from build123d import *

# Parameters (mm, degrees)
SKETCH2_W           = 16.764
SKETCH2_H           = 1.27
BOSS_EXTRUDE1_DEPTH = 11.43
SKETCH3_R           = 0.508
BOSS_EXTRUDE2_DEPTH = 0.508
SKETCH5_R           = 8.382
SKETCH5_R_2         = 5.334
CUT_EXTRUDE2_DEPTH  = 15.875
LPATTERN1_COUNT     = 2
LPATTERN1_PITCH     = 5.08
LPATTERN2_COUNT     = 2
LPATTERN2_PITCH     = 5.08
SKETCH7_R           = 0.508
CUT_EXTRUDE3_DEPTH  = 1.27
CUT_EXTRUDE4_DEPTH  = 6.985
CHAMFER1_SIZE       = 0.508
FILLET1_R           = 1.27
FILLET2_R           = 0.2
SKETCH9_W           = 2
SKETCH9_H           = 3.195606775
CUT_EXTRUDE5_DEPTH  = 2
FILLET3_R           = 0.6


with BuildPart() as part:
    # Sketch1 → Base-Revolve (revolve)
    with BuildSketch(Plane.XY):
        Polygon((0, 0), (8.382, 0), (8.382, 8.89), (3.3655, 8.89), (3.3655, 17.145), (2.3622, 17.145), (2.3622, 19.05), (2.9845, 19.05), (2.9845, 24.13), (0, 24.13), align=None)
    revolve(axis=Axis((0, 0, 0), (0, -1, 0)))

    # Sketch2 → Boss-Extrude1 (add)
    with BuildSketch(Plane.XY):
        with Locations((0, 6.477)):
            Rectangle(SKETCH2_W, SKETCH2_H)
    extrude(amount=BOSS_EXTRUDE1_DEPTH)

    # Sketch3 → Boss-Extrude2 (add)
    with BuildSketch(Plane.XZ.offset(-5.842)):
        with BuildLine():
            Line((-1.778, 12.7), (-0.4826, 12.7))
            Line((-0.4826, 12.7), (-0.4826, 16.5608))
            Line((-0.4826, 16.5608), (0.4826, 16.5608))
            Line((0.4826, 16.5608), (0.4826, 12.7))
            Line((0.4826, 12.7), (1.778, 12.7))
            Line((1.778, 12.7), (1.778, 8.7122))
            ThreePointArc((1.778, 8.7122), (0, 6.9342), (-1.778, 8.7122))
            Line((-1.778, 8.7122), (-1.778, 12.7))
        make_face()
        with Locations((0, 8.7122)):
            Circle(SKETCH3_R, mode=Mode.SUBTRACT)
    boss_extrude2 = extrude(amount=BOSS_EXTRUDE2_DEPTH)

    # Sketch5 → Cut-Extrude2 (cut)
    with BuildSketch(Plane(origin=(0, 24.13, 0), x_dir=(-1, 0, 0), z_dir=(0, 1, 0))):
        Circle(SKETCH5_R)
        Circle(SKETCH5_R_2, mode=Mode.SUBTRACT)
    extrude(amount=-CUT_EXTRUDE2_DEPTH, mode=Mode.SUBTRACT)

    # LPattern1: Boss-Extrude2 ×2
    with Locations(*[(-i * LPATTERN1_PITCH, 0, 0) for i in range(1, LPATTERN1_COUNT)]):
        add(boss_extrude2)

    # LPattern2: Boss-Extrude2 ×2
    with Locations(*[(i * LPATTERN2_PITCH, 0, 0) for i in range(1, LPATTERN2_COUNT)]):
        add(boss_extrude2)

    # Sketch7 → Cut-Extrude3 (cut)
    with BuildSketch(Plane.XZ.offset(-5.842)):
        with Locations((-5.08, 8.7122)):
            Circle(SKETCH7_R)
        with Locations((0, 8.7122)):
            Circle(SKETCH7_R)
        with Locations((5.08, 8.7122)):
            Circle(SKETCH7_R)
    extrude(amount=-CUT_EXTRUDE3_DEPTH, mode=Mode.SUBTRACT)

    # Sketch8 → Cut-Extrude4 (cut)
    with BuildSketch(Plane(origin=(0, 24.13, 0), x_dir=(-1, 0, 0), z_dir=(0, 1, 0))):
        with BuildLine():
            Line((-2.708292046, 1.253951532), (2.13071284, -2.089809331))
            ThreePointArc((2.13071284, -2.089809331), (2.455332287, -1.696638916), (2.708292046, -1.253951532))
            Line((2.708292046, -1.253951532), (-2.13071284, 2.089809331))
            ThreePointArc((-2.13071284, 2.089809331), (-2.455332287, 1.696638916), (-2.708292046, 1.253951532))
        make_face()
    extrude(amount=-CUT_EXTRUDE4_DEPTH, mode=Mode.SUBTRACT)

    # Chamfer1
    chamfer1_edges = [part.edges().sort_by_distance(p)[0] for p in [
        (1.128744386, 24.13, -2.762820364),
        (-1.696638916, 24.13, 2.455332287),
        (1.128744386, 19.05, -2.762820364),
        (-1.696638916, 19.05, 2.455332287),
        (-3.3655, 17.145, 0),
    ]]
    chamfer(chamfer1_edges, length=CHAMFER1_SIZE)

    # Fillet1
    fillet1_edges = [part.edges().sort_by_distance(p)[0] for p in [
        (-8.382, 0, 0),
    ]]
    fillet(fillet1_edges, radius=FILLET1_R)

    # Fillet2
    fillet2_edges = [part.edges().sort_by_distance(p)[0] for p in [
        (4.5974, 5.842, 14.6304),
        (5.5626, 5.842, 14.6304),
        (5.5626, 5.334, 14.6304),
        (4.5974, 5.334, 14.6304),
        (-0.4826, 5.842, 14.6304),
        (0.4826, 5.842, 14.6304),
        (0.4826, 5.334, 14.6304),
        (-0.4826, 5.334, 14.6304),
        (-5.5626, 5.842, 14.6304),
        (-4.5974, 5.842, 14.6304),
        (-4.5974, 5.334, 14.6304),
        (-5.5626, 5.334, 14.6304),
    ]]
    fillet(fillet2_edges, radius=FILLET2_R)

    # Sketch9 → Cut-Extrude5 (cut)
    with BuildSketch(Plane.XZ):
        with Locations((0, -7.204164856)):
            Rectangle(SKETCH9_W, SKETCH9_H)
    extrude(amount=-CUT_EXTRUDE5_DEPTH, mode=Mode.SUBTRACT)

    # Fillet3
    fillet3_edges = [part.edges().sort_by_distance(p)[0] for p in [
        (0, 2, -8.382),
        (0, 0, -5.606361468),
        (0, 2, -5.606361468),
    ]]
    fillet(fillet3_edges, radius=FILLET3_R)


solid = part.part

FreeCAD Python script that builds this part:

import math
import FreeCAD as App
import Part
import Sketcher
Q = App.Units.Quantity


def edges_at(feature, points):
    """Names of the edges that pass closest to the given points."""
    edges = feature.Shape.Edges
    near = lambda p: min(range(len(edges)), key=lambda i: edges[i].distToShape(Part.Vertex(*p))[0])
    return sorted({f"Edge{near(p) + 1}" for p in points})


def add_polygon(sketch, points):
    """Adds a closed chain of lines whose ends are joined by coincident constraints."""
    first, n = sketch.GeometryCount, len(points)
    for a, b in zip(points, points[1:] + points[:1]):
        sketch.addGeometry(Part.LineSegment(App.Vector(*a, 0), App.Vector(*b, 0)), False)
    for i in range(n):
        sketch.addConstraint(Sketcher.Constraint("Coincident", first + i, 2, first + (i + 1) % n, 1))

doc = App.newDocument("Part")
body = doc.addObject("PartDesign::Body", "Body")

sketch1 = doc.addObject("Sketcher::SketchObject", "Sketch")
body.addObject(sketch1)
sketch1.AttachmentSupport = (doc.XY_Plane, [""])
sketch1.MapMode = "FlatFace"
add_polygon(sketch1, [(0, 0), (8.4, 0), (8.4, 8.9), (3.4, 8.9), (3.4, 17.1), (2.4, 17.1), (2.4, 19.1), (3, 19.1), (3, 24.1), (0, 24.1)])
sketch1.addConstraint([
    Sketcher.Constraint("Horizontal", 0),
    Sketcher.Constraint("Vertical", 1),
    Sketcher.Constraint("Horizontal", 2),
    Sketcher.Constraint("Vertical", 3),
    Sketcher.Constraint("Horizontal", 4),
    Sketcher.Constraint("Vertical", 5),
    Sketcher.Constraint("Horizontal", 6),
    Sketcher.Constraint("Vertical", 7),
    Sketcher.Constraint("Horizontal", 8),
    Sketcher.Constraint("Vertical", 9),
    Sketcher.Constraint("Coincident", 9, 2, -1, 1),
    Sketcher.Constraint("DistanceY", 7, 1, 7, 2, Q("0.2 in")),
    Sketcher.Constraint("DistanceX", 0, 1, 0, 2, Q("0.33 in")),
    Sketcher.Constraint("DistanceY", 1, 1, 1, 2, Q("0.35 in")),
    Sketcher.Constraint("DistanceY", 9, 2, 9, 1, Q("0.95 in")),
    Sketcher.Constraint("DistanceY", 3, 1, 3, 2, Q("0.325 in")),
    Sketcher.Constraint("DistanceX", 2, 2, 2, 1, Q("0.1975 in")),
    Sketcher.Constraint("DistanceX", 4, 2, 4, 1, Q("0.0395 in")),
    Sketcher.Constraint("DistanceX", 6, 1, 6, 2, Q("0.0245 in")),
])
revolution = doc.addObject("PartDesign::Revolution", "Revolution")
body.addObject(revolution)
revolution.Profile = sketch1
revolution.ReferenceAxis = (sketch1, ["V_Axis"])
revolution.Angle = 360

sketch2 = doc.addObject("Sketcher::SketchObject", "Sketch001")
body.addObject(sketch2)
sketch2.AttachmentSupport = (doc.XY_Plane, [""])
sketch2.MapMode = "FlatFace"
add_polygon(sketch2, [(-8.4, 7.1), (-8.4, 5.8), (8.4, 5.8), (8.4, 7.1)])
sketch2.addConstraint([
    Sketcher.Constraint("Vertical", 0),
    Sketcher.Constraint("Horizontal", 1),
    Sketcher.Constraint("Vertical", 2),
    Sketcher.Constraint("Horizontal", 3),
    Sketcher.Constraint("DistanceX", 1, 1, 1, 2, Q("0.66 in")),
    Sketcher.Constraint("DistanceY", 0, 2, 0, 1, Q("0.05 in")),
    Sketcher.Constraint("DistanceX", 0, 2, -1, 1, Q("0.33 in")),
    Sketcher.Constraint("DistanceY", -1, 1, 0, 2, Q("0.23 in")),
])
pad1 = doc.addObject("PartDesign::Pad", "Pad")
body.addObject(pad1)
pad1.Profile = sketch2
pad1.Length = Q("0.45 in")

sketch3 = doc.addObject("Sketcher::SketchObject", "Sketch002")
body.addObject(sketch3)
sketch3.AttachmentSupport = (doc.XZ_Plane, [""])
sketch3.MapMode = "FlatFace"
sketch3.AttachmentOffset = App.Placement(App.Vector(0, 0, -0.23 * 25.4), App.Rotation())
sketch3.addGeometry([
    Part.LineSegment(App.Vector(-0.5, 12.7, 0), App.Vector(-1.8, 12.7, 0)),
    Part.LineSegment(App.Vector(-1.8, 12.7, 0), App.Vector(-1.8, 8.7, 0)),
    Part.ArcOfCircle(Part.Circle(App.Vector(0, 8.7, 0), App.Vector(0, 0, 1), 1.8), math.radians(180), math.radians(360)),
    Part.LineSegment(App.Vector(1.8, 8.7, 0), App.Vector(1.8, 12.7, 0)),
    Part.LineSegment(App.Vector(1.8, 12.7, 0), App.Vector(0.5, 12.7, 0)),
    Part.LineSegment(App.Vector(0.5, 12.7, 0), App.Vector(0.5, 16.6, 0)),
    Part.LineSegment(App.Vector(0.5, 16.6, 0), App.Vector(-0.5, 16.6, 0)),
    Part.LineSegment(App.Vector(-0.5, 16.6, 0), App.Vector(-0.5, 12.7, 0)),
    Part.Circle(App.Vector(0, 8.7, 0), App.Vector(0, 0, 1), 0.5),
], False)
sketch3.addConstraint([
    Sketcher.Constraint("Coincident", 0, 2, 1, 1),
    Sketcher.Constraint("Tangent", 1, 2, 2, 1),
    Sketcher.Constraint("Tangent", 2, 2, 3, 1),
    Sketcher.Constraint("Coincident", 3, 2, 4, 1),
    Sketcher.Constraint("Coincident", 4, 2, 5, 1),
    Sketcher.Constraint("Coincident", 5, 2, 6, 1),
    Sketcher.Constraint("Coincident", 6, 2, 7, 1),
    Sketcher.Constraint("Coincident", 7, 2, 0, 1),
    Sketcher.Constraint("Horizontal", 0),
    Sketcher.Constraint("Vertical", 1),
    Sketcher.Constraint("Vertical", 3),
    Sketcher.Constraint("Horizontal", 4),
    Sketcher.Constraint("Vertical", 5),
    Sketcher.Constraint("Horizontal", 6),
    Sketcher.Constraint("Vertical", 7),
    Sketcher.Constraint("Coincident", 8, 3, 2, 3),
    Sketcher.Constraint("Symmetric", 0, 2, 3, 2, -2),
    Sketcher.Constraint("Equal", 0, 4),
    Sketcher.Constraint("Diameter", 8, Q("0.04 in")),
    Sketcher.Constraint("Radius", 2, Q("0.07 in")),
    Sketcher.Constraint("DistanceY", -1, 1, 0, 2, Q("0.5 in")),
    Sketcher.Constraint("DistanceX", 0, 2, 0, 1, Q("0.051 in")),
    Sketcher.Constraint("DistanceY", 1, 2, 1, 1, Q("0.157 in")),
    Sketcher.Constraint("DistanceY", 5, 1, 5, 2, Q("0.152 in")),
])
pad2 = doc.addObject("PartDesign::Pad", "Pad001")
body.addObject(pad2)
pad2.Profile = sketch3
pad2.Length = Q("0.02 in")

sketch4 = doc.addObject("Sketcher::SketchObject", "Sketch003")
body.addObject(sketch4)
sketch4.AttachmentSupport = (doc.XZ_Plane, [""])
sketch4.MapMode = "FlatFace"
sketch4.AttachmentOffset = App.Placement(App.Vector(0, 0, -0.95 * 25.4), App.Rotation())
sketch4.addGeometry([
    Part.Circle(App.Vector(0, 0, 0), App.Vector(0, 0, 1), 8),
    Part.Circle(App.Vector(0, 0, 0), App.Vector(0, 0, 1), 5),
], False)
sketch4.addConstraint([
    Sketcher.Constraint("Coincident", 0, 3, -1, 1),
    Sketcher.Constraint("Coincident", 1, 3, -1, 1),
    Sketcher.Constraint("Diameter", 0, Q("0.66 in")),
    Sketcher.Constraint("Diameter", 1, Q("0.42 in")),
])
pocket1 = doc.addObject("PartDesign::Pocket", "Pocket")
body.addObject(pocket1)
pocket1.Profile = sketch4
pocket1.Length = Q("0.625 in")
pocket1.Reversed = True
doc.recompute()

linearpattern = doc.addObject("PartDesign::LinearPattern", "LinearPattern")
body.addObject(linearpattern)
linearpattern.Originals = [pad2]
linearpattern.Direction = (doc.X_Axis, [""])
linearpattern.Mode = "offset"
linearpattern.Offset = Q("0.2 in")
linearpattern.Occurrences = 2
linearpattern.Reversed = True
body.Tip = linearpattern
doc.recompute()

linearpattern2 = doc.addObject("PartDesign::LinearPattern", "LinearPattern001")
body.addObject(linearpattern2)
linearpattern2.Originals = [pad2]
linearpattern2.Direction = (doc.X_Axis, [""])
linearpattern2.Mode = "offset"
linearpattern2.Offset = Q("0.2 in")
linearpattern2.Occurrences = 2
body.Tip = linearpattern2

sketch5 = doc.addObject("Sketcher::SketchObject", "Sketch004")
body.addObject(sketch5)
sketch5.AttachmentSupport = (doc.XZ_Plane, [""])
sketch5.MapMode = "FlatFace"
sketch5.AttachmentOffset = App.Placement(App.Vector(0, 0, -0.23 * 25.4), App.Rotation())
sketch5.addGeometry([
    Part.Circle(App.Vector(-5.1, 8.7, 0), App.Vector(0, 0, 1), 0.5),
    Part.Circle(App.Vector(0, 8.7, 0), App.Vector(0, 0, 1), 0.5),
    Part.Circle(App.Vector(5.1, 8.7, 0), App.Vector(0, 0, 1), 0.5),
], False)
sketch5.addConstraint([
    Sketcher.Constraint("Equal", 0, 1),
    Sketcher.Constraint("Equal", 1, 2),
    Sketcher.Constraint("Symmetric", 0, 3, 2, 3, -2),
    Sketcher.Constraint("PointOnObject", 1, 3, -2),
    Sketcher.Constraint("Horizontal", 0, 3, 1, 3),
    Sketcher.Constraint("Diameter", 0, Q("0.04 in")),
    Sketcher.Constraint("DistanceX", 0, 3, -1, 1, Q("0.2 in")),
    Sketcher.Constraint("DistanceY", -1, 1, 0, 3, Q("0.343 in")),
])
pocket2 = doc.addObject("PartDesign::Pocket", "Pocket001")
body.addObject(pocket2)
pocket2.Profile = sketch5
pocket2.Length = Q("0.05 in")

sketch6 = doc.addObject("Sketcher::SketchObject", "Sketch005")
body.addObject(sketch6)
sketch6.AttachmentSupport = (doc.XZ_Plane, [""])
sketch6.MapMode = "FlatFace"
sketch6.AttachmentOffset = App.Placement(App.Vector(0, 0, -0.95 * 25.4), App.Rotation())
sketch6.addGeometry([
    Part.LineSegment(App.Vector(2.7, 1.3, 0), App.Vector(-2.1, -2.1, 0)),
    Part.ArcOfCircle(Part.Circle(App.Vector(0, 0, 0), App.Vector(0, 0, 1), 3), math.radians(-155.16), math.radians(-135.56)),
    Part.LineSegment(App.Vector(-2.7, -1.3, 0), App.Vector(2.1, 2.1, 0)),
    Part.ArcOfCircle(Part.Circle(App.Vector(0, 0, 0), App.Vector(0, 0, 1), 3), math.radians(24.84), math.radians(44.44)),
], False)
sketch6.addConstraint([
    Sketcher.Constraint("Coincident", 0, 2, 1, 2),
    Sketcher.Constraint("Coincident", 1, 1, 2, 1),
    Sketcher.Constraint("Coincident", 2, 2, 3, 2),
    Sketcher.Constraint("Coincident", 3, 1, 0, 1),
    Sketcher.Constraint("Coincident", 1, 3, -1, 1),
    Sketcher.Constraint("Coincident", 3, 3, -1, 1),
    Sketcher.Constraint("Equal", 1, 3),
    Sketcher.Constraint("Parallel", 0, 2),
    Sketcher.Constraint("Equal", 0, 2),
    Sketcher.Constraint("Radius", 1, Q("0.1175 in")),
    Sketcher.Constraint("DistanceY", 0, 2, -1, 1, Q("2.089809 mm")),
    Sketcher.Constraint("DistanceY", 1, 1, -1, 1, Q("1.253952 mm")),
])
pocket3 = doc.addObject("PartDesign::Pocket", "Pocket002")
body.addObject(pocket3)
pocket3.Profile = sketch6
pocket3.Length = Q("0.275 in")
pocket3.Reversed = True
doc.recompute()

chamfer = doc.addObject("PartDesign::Chamfer", "Chamfer")
body.addObject(chamfer)
chamfer.Base = (pocket3, edges_at(pocket3, [
    (1.129, 24.13, -2.763),
    (-1.697, 24.13, 2.455),
    (1.129, 19.05, -2.763),
    (-1.697, 19.05, 2.455),
    (-3.365, 17.145, 0),
]))
chamfer.Size = Q("0.02 in")
doc.recompute()

fillet = doc.addObject("PartDesign::Fillet", "Fillet")
body.addObject(fillet)
fillet.Base = (chamfer, edges_at(chamfer, [(-8.382, 0, 0)]))
fillet.Radius = Q("0.05 in")
doc.recompute()

fillet2 = doc.addObject("PartDesign::Fillet", "Fillet001")
body.addObject(fillet2)
fillet2.Base = (fillet, edges_at(fillet, [
    (4.597, 5.842, 14.63),
    (5.563, 5.842, 14.63),
    (5.563, 5.334, 14.63),
    (4.597, 5.334, 14.63),
    (-0.483, 5.842, 14.63),
    (0.483, 5.842, 14.63),
    (0.483, 5.334, 14.63),
    (-0.483, 5.334, 14.63),
    (-5.563, 5.842, 14.63),
    (-4.597, 5.842, 14.63),
    (-4.597, 5.334, 14.63),
    (-5.563, 5.334, 14.63),
]))
fillet2.Radius = 0.2

sketch7 = doc.addObject("Sketcher::SketchObject", "Sketch006")
body.addObject(sketch7)
sketch7.AttachmentSupport = (doc.XZ_Plane, [""])
sketch7.MapMode = "FlatFace"
add_polygon(sketch7, [(-1, -5.6), (-1, -8.8), (1, -8.8), (1, -5.6)])
sketch7.addConstraint([
    Sketcher.Constraint("Vertical", 0),
    Sketcher.Constraint("Horizontal", 1),
    Sketcher.Constraint("Vertical", 2),
    Sketcher.Constraint("Horizontal", 3),
    Sketcher.Constraint("DistanceX", 1, 1, 1, 2, Q("2 mm")),
    Sketcher.Constraint("DistanceX", 0, 2, -1, 1, Q("1 mm")),
    Sketcher.Constraint("DistanceY", 0, 2, 0, 1, Q("3.195607 mm")),
    Sketcher.Constraint("DistanceY", 0, 2, -1, 1, Q("8.801968 mm")),
])
pocket4 = doc.addObject("PartDesign::Pocket", "Pocket003")
body.addObject(pocket4)
pocket4.Profile = sketch7
pocket4.Length = 2
doc.recompute()

fillet3 = doc.addObject("PartDesign::Fillet", "Fillet002")
body.addObject(fillet3)
fillet3.Base = (pocket4, edges_at(pocket4, [(0, 2, -8.382), (0, 0, -5.606), (0, 2, -5.606)]))
fillet3.Radius = 0.6

doc.recompute()
